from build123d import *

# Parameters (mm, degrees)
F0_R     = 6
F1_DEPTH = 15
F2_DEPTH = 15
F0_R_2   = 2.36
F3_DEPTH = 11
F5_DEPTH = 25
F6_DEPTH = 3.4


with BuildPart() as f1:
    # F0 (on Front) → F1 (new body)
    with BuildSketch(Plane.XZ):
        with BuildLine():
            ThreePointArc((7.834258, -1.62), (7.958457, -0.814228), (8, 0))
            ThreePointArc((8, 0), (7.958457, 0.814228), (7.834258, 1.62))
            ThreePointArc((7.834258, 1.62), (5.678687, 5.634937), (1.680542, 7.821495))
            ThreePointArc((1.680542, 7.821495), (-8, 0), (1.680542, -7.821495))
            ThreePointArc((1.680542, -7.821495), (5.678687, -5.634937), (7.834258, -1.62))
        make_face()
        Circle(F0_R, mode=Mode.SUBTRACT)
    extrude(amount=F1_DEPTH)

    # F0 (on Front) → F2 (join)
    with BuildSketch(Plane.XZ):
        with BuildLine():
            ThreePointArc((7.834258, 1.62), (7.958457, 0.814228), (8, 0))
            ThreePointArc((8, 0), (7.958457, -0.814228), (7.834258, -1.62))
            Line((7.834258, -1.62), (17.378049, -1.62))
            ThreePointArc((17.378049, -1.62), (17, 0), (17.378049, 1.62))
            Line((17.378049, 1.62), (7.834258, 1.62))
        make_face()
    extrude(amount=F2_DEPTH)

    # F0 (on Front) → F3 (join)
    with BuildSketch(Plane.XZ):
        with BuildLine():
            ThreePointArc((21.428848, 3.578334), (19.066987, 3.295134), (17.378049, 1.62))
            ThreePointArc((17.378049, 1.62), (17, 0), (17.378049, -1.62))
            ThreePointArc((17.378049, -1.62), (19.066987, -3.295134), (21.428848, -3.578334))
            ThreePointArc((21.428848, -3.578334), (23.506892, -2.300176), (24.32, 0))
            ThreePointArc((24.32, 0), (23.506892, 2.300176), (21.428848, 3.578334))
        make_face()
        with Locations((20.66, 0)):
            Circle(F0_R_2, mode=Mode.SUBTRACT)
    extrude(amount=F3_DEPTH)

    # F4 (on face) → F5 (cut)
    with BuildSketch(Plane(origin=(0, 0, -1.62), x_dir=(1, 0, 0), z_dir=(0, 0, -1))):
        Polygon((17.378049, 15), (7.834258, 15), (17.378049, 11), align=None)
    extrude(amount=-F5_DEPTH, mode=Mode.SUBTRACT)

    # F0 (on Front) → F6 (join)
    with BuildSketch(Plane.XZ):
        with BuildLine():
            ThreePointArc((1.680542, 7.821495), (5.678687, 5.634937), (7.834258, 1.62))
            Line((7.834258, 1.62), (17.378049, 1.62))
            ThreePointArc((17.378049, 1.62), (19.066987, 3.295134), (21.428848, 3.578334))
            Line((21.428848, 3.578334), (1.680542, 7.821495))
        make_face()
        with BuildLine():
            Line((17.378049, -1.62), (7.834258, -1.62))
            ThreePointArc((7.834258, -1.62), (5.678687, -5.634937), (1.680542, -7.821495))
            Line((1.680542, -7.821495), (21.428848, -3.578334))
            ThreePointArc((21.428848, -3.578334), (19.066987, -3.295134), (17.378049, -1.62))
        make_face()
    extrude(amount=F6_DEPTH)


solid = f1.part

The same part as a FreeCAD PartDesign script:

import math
import FreeCAD as App
import Part
import Sketcher

V = App.Vector


def add_polygon(sketch, points):
    """Adds a closed chain of lines whose ends are joined by coincident constraints."""
    first, n = sketch.GeometryCount, len(points)
    for a, b in zip(points, points[1:] + points[:1]):
        sketch.addGeometry(Part.LineSegment(App.Vector(*a, 0), App.Vector(*b, 0)), False)
    for i in range(n):
        sketch.addConstraint(Sketcher.Constraint("Coincident", first + i, 2, first + (i + 1) % n, 1))

doc = App.newDocument("Part")
body = doc.addObject("PartDesign::Body", "Body")

sketch1 = body.newObject("Sketcher::SketchObject", "Sketch")
sketch1.AttachmentSupport = (doc.getObject("XZ_Plane"), [""])
sketch1.MapMode = "FlatFace"
sketch1.addGeometry([
    Part.ArcOfCircle(Part.Circle(V(0.00007, -0.000007, 0), V(0, 0, 1), 7.99993), math.radians(-11.683245), math.radians(0.000048)),
    Part.ArcOfCircle(Part.Circle(V(0.00007, 0.000007, 0), V(0, 0, 1), 7.99993), math.radians(-0.000048), math.radians(11.683245)),
    Part.ArcOfCircle(Part.Circle(V(-0.000001, 0, 0), V(0, 0, 1), 8), math.radians(11.68319), math.radians(77.873674)),
    Part.ArcOfCircle(Part.Circle(V(0, 0, 0), V(0, 0, 1), 8), math.radians(77.87368), math.radians(282.12632)),
    Part.ArcOfCircle(Part.Circle(V(-0.000001, 0, 0), V(0, 0, 1), 8), math.radians(-77.873674), math.radians(-11.68319)),
    Part.Circle(V(0, 0, 0), V(0, 0, 1), 6),
], False)
sketch1.addConstraint([
    Sketcher.Constraint("Coincident", 0, 2, 1, 1),
    Sketcher.Constraint("Coincident", 1, 2, 2, 1),
    Sketcher.Constraint("Coincident", 2, 2, 3, 1),
    Sketcher.Constraint("Coincident", 3, 2, 4, 1),
    Sketcher.Constraint("Coincident", 4, 2, 0, 1),
    Sketcher.Constraint("Coincident", 2, 3, -1, 1),
    Sketcher.Constraint("Coincident", 3, 3, -1, 1),
    Sketcher.Constraint("Coincident", 4, 3, -1, 1),
    Sketcher.Constraint("Coincident", 5, 3, -1, 1),
    Sketcher.Constraint("PointOnObject", 0, 2, -1),
    Sketcher.Constraint("Diameter", 5, 12.0),
    Sketcher.Constraint("Radius", 2, 8.0),
    Sketcher.Constraint("DistanceX", -1, 1, 0, 2, 8.0),
    Sketcher.Constraint("DistanceY", -1, 1, 1, 2, 1.62),
    Sketcher.Constraint("DistanceY", 4, 2, -1, 1, 1.62),
    Sketcher.Constraint("Radius", 0, 7.99993),
    Sketcher.Constraint("Radius", 1, 7.99993),
    Sketcher.Constraint("DistanceY", 0, 3, 2, 2, 7.821502),
    Sketcher.Constraint("DistanceY", 3, 2, 1, 3, 7.821502),
])
pad1 = body.newObject("PartDesign::Pad", "Pad")
pad1.Profile = sketch1
pad1.Length = 15

sketch2 = body.newObject("Sketcher::SketchObject", "Sketch001")
sketch2.AttachmentSupport = (doc.getObject("XZ_Plane"), [""])
sketch2.MapMode = "FlatFace"
sketch2.addGeometry([
    Part.ArcOfCircle(Part.Circle(V(0.00007, 0.000007, 0), V(0, 0, 1), 7.99993), math.radians(-0.000048), math.radians(11.683245)),
    Part.ArcOfCircle(Part.Circle(V(0.00007, -0.000007, 0), V(0, 0, 1), 7.99993), math.radians(-11.683245), math.radians(0.000048)),
    Part.LineSegment(V(7.834258, -1.62, 0), V(17.378049, -1.62, 0)),
    Part.ArcOfCircle(Part.Circle(V(20.660003, 0, 0), V(0, 0, 1), 3.660003), math.radians(153.728668), math.radians(206.271332)),
    Part.LineSegment(V(17.378049, 1.62, 0), V(7.834258, 1.62, 0)),
], False)
sketch2.addConstraint([
    Sketcher.Constraint("Tangent", 0, 1, 1, 2),
    Sketcher.Constraint("Coincident", 1, 1, 2, 1),
    Sketcher.Constraint("Coincident", 2, 2, 3, 2),
    Sketcher.Constraint("Coincident", 3, 1, 4, 1),
    Sketcher.Constraint("Coincident", 4, 2, 0, 2),
    Sketcher.Constraint("Horizontal", 2),
    Sketcher.Constraint("Horizontal", 4),
    Sketcher.Constraint("Equal", 0, 1),
    Sketcher.Constraint("Symmetric", 2, 2, 3, 1, -1),
    Sketcher.Constraint("PointOnObject", 0, 1, -1),
    Sketcher.Constraint("Vertical", 1, 1, 4, 2),
    Sketcher.Constraint("DistanceX", -1, 1, 0, 1, 8.0),
    Sketcher.Constraint("DistanceY", 1, 1, -1, 1, 1.62),
    Sketcher.Constraint("Radius", 0, 7.99993),
    Sketcher.Constraint("Radius", 3, 3.660003),
    Sketcher.Constraint("DistanceX", 2, 1, 2, 2, 9.543791),
])
pad2 = body.newObject("PartDesign::Pad", "Pad001")
pad2.Profile = sketch2
pad2.Length = 15

sketch3 = body.newObject("Sketcher::SketchObject", "Sketch002")
sketch3.AttachmentSupport = (doc.getObject("XZ_Plane"), [""])
sketch3.MapMode = "FlatFace"
sketch3.addGeometry([
    Part.ArcOfCircle(Part.Circle(V(20.660001, -0.000002, 0), V(0, 0, 1), 3.660002), math.radians(77.873698), math.radians(153.728624)),
    Part.ArcOfCircle(Part.Circle(V(20.660003, 0, 0), V(0, 0, 1), 3.660003), math.radians(153.728668), math.radians(206.271332)),
    Part.ArcOfCircle(Part.Circle(V(20.660001, 0.000002, 0), V(0, 0, 1), 3.660002), math.radians(-153.728624), math.radians(-77.873698)),
    Part.ArcOfCircle(Part.Circle(V(20.660001, -0.000001, 0), V(0, 0, 1), 3.659999), math.radians(-77.873693), math.radians(0.00002)),
    Part.ArcOfCircle(Part.Circle(V(20.660001, 0.000001, 0), V(0, 0, 1), 3.659999), math.radians(-0.00002), math.radians(77.873693)),
    Part.Circle(V(20.66, 0, 0), V(0, 0, 1), 2.36),
], False)
sketch3.addConstraint([
    Sketcher.Constraint("Tangent", 0, 2, 1, 1),
    Sketcher.Constraint("Tangent", 1, 2, 2, 1),
    Sketcher.Constraint("Tangent", 2, 2, 3, 1),
    Sketcher.Constraint("Tangent", 3, 2, 4, 1),
    Sketcher.Constraint("Tangent", 4, 2, 0, 1),
    Sketcher.Constraint("Coincident", 2, 3, 0, 3),
    Sketcher.Constraint("Coincident", 5, 3, 0, 3),
    Sketcher.Constraint("Symmetric", 0, 2, 1, 2, -1),
    Sketcher.Constraint("PointOnObject", 3, 2, -1),
    Sketcher.Constraint("Vertical", 2, 2, 4, 2),
    Sketcher.Constraint("Diameter", 5, 4.72),
    Sketcher.Constraint("Radius", 3, 3.659999),
    Sketcher.Constraint("DistanceX", -1, 1, 0, 3, 20.660001),
    Sketcher.Constraint("DistanceY", -1, 1, 0, 2, 1.62),
    Sketcher.Constraint("DistanceX", -1, 1, 2, 2, 21.428848),
])
pad3 = body.newObject("PartDesign::Pad", "Pad002")
pad3.Profile = sketch3
pad3.Length = 11

sketch4 = body.newObject("Sketcher::SketchObject", "Sketch003")
sketch4.AttachmentSupport = (doc.getObject("XY_Plane"), [""])
sketch4.MapMode = "FlatFace"
sketch4.AttachmentOffset = App.Placement(V(0, 0, -1.62), App.Rotation())
add_polygon(sketch4, [(17.378049, -15), (7.834258, -15), (17.378049, -11)])
sketch4.addConstraint([
    Sketcher.Constraint("Horizontal", 0),
    Sketcher.Constraint("Vertical", 2),
    Sketcher.Constraint("DistanceY", 2, 2, 2, 1, 4.0),
    Sketcher.Constraint("DistanceY", 0, 2, -1, 1, 15.0),
    Sketcher.Constraint("DistanceX", 0, 2, 0, 1, 9.543791),
    Sketcher.Constraint("DistanceX", -1, 1, 0, 2, 7.834258),
])
pocket1 = body.newObject("PartDesign::Pocket", "Pocket")
pocket1.Profile = sketch4
pocket1.Length = 25
pocket1.Reversed = True

sketch5 = body.newObject("Sketcher::SketchObject", "Sketch004")
sketch5.AttachmentSupport = (doc.getObject("XZ_Plane"), [""])
sketch5.MapMode = "FlatFace"
sketch5.addGeometry([
    Part.ArcOfCircle(Part.Circle(V(-0.000001, 0, 0), V(0, 0, 1), 8), math.radians(11.68319), math.radians(77.873674)),
    Part.LineSegment(V(7.834258, 1.62, 0), V(17.378049, 1.62, 0)),
    Part.ArcOfCircle(Part.Circle(V(20.660001, -0.000002, 0), V(0, 0, 1), 3.660002), math.radians(77.873698), math.radians(153.728624)),
    Part.LineSegment(V(21.428848, 3.578334, 0), V(1.680542, 7.821495, 0)),
    Part.LineSegment(V(17.378049, -1.62, 0), V(7.834258, -1.62, 0)),
    Part.ArcOfCircle(Part.Circle(V(-0.000001, 0, 0), V(0, 0, 1), 8), math.radians(-77.873674), math.radians(-11.68319)),
    Part.LineSegment(V(1.680542, -7.821495, 0), V(21.428848, -3.578334, 0)),
    Part.ArcOfCircle(Part.Circle(V(20.660001, 0.000002, 0), V(0, 0, 1), 3.660002), math.radians(-153.728624), math.radians(-77.873698)),
], False)
sketch5.addConstraint([
    Sketcher.Constraint("Coincident", 0, 1, 1, 1),
    Sketcher.Constraint("Coincident", 1, 2, 2, 2),
    Sketcher.Constraint("Tangent", 2, 1, 3, 1),
    Sketcher.Constraint("Tangent", 3, 2, 0, 2),
    Sketcher.Constraint("Coincident", 4, 2, 5, 2),
    Sketcher.Constraint("Tangent", 5, 1, 6, 1),
    Sketcher.Constraint("Tangent", 6, 2, 7, 2),
    Sketcher.Constraint("Coincident", 7, 1, 4, 1),
    Sketcher.Constraint("Horizontal", 1),
    Sketcher.Constraint("Horizontal", 4),
    Sketcher.Constraint("Coincident", 0, 3, -1, 1),
    Sketcher.Constraint("Coincident", 5, 3, -1, 1),
    Sketcher.Constraint("Coincident", 7, 3, 2, 3),
    Sketcher.Constraint("Equal", 0, 5),
    Sketcher.Constraint("Equal", 2, 7),
    Sketcher.Constraint("Symmetric", 1, 2, 7, 1, -1),
    Sketcher.Constraint("Radius", 0, 8.0),
    Sketcher.Constraint("DistanceX", -1, 1, 2, 3, 20.660001),
    Sketcher.Constraint("DistanceY", -1, 1, 0, 1, 1.62),
    Sketcher.Constraint("Radius", 2, 3.660002),
])
pad4 = body.newObject("PartDesign::Pad", "Pad003")
pad4.Profile = sketch5
pad4.Length = 3.4

doc.recompute()
